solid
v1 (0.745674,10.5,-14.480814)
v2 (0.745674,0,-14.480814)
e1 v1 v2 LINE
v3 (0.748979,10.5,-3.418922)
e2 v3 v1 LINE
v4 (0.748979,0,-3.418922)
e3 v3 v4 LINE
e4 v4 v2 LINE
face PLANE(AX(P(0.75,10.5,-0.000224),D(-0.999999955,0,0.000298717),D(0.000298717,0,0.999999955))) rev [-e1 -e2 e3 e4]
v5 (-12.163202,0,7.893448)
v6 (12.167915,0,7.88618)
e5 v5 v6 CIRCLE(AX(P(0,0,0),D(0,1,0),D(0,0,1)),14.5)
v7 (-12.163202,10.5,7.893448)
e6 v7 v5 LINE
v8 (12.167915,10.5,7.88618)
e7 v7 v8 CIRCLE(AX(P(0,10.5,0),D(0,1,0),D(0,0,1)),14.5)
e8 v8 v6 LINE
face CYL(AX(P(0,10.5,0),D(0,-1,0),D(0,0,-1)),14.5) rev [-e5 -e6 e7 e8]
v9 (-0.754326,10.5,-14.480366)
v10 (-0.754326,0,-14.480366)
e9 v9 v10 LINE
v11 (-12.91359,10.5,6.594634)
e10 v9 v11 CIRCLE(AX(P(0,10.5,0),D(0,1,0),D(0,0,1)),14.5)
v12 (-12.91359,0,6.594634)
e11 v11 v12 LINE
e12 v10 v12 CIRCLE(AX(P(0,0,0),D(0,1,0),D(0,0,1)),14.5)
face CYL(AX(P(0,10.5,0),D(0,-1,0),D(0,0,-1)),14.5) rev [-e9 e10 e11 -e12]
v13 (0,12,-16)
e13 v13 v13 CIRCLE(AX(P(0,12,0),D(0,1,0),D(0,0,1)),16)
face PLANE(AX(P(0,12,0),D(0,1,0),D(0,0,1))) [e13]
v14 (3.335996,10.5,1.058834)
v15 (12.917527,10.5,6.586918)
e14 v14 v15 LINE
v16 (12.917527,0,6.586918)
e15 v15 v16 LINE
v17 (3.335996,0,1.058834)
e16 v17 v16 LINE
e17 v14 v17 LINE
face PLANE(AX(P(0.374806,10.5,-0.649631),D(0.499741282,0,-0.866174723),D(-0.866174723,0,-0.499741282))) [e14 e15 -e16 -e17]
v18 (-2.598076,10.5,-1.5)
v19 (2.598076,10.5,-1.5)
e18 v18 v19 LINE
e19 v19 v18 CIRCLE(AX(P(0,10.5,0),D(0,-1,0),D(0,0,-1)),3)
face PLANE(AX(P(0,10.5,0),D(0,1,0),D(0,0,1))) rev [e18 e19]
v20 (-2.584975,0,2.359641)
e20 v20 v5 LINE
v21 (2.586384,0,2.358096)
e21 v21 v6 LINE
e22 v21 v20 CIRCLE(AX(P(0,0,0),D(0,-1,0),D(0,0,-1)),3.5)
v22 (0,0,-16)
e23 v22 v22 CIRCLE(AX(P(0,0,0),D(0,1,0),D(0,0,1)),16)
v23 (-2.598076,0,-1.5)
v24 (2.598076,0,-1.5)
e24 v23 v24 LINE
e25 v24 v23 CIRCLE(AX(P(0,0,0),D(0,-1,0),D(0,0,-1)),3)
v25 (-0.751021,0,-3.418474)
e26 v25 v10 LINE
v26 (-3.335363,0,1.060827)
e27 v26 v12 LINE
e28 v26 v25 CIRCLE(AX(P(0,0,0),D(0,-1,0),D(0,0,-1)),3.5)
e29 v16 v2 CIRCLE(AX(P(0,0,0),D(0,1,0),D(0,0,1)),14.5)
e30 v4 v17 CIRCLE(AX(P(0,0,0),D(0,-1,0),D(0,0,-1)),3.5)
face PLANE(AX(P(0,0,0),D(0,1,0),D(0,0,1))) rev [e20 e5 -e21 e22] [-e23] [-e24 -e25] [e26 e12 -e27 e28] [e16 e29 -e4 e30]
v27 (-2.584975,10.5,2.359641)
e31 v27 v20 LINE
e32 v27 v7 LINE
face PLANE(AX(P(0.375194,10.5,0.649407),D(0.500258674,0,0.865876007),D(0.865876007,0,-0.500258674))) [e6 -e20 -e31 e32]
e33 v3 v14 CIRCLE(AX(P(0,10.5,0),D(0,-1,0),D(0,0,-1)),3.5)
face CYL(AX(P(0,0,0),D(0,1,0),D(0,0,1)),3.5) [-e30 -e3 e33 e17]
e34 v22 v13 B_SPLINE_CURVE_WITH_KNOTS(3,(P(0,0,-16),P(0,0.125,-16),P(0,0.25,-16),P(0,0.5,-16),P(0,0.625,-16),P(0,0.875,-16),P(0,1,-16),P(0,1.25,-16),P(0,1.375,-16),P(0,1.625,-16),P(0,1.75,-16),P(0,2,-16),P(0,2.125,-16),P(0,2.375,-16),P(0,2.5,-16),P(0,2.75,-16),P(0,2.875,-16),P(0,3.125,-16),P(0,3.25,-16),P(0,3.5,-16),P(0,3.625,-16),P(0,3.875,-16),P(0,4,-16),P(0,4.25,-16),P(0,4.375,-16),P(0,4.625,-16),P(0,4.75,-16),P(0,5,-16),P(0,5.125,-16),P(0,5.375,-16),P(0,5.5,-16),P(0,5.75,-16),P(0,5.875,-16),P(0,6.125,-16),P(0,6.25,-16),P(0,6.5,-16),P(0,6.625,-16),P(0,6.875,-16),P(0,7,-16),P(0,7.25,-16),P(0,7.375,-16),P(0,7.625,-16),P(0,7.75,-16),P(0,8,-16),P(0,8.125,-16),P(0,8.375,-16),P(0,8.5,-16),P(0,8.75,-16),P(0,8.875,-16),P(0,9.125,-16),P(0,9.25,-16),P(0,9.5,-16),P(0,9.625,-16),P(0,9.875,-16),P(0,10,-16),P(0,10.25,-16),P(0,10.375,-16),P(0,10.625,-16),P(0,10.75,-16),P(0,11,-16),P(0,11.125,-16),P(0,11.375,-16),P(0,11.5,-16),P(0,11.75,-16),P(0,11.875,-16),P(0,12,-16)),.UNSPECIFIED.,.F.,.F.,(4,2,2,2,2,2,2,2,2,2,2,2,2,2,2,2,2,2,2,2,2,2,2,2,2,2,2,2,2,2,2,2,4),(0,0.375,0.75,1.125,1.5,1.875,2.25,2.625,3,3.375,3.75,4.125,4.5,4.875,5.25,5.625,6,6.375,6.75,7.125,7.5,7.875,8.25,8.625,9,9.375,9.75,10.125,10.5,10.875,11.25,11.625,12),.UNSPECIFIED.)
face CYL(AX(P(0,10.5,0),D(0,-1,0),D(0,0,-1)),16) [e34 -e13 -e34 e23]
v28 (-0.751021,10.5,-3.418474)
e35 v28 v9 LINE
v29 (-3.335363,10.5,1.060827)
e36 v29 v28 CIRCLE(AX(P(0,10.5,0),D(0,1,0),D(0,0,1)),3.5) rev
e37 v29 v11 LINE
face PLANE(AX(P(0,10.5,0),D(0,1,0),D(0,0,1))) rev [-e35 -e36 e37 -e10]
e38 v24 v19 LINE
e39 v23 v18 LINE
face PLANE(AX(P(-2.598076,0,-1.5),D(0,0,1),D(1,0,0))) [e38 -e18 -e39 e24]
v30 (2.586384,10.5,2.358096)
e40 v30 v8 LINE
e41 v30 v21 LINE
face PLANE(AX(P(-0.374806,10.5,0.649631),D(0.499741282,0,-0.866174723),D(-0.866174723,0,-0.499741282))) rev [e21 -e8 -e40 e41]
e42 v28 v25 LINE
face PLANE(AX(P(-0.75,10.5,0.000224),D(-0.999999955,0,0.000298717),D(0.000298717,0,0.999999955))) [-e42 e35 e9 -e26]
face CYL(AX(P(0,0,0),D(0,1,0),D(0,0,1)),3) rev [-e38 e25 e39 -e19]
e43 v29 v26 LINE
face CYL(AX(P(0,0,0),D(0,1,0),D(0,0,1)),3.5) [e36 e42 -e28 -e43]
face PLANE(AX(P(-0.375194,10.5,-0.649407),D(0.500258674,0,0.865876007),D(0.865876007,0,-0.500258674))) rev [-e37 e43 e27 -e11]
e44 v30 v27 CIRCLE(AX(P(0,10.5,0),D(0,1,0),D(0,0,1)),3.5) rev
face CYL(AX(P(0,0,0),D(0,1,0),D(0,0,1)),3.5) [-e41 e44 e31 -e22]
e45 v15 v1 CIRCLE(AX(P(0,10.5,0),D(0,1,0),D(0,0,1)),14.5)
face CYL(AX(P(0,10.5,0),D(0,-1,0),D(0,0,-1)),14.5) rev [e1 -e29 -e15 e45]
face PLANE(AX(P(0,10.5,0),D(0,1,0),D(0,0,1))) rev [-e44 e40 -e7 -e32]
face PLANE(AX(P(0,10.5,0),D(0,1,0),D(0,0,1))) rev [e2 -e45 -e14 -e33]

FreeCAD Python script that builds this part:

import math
import FreeCAD as App
import Part
import Sketcher
from FreeCAD import Vector
Q = App.Units.Quantity

doc = App.newDocument("Part")
body = doc.addObject("PartDesign::Body", "Body")

# Sketch on XZ plane
sketch1 = body.newObject("Sketcher::SketchObject", "Sketch")
sketch1.AttachmentSupport = (doc.getObject("XZ_Plane"), [""])
sketch1.MapMode = "FlatFace"
sketch1.addGeometry([
    Part.Circle(Vector(0, 0, 0), Vector(0, 0, 1), 16),  # 0
    Part.ArcOfCircle(Part.Circle(Vector(0, 0, 0), Vector(0, 0, 1), 14.5), math.radians(152.947783), math.radians(267.017987)),  # 1
    Part.LineSegment(Vector(-0.754326, -14.480366, 0), Vector(-0.751021, -3.418474, 0)),  # 2
    Part.ArcOfCircle(Part.Circle(Vector(0, 0, 0), Vector(0, 0, 1), 3.5), math.radians(-102.39074), math.radians(-77.64349)),  # 3
    Part.LineSegment(Vector(0.748979, -3.418922, 0), Vector(0.745674, -14.480814, 0)),  # 4
    Part.ArcOfCircle(Part.Circle(Vector(0, 0, 0), Vector(0, 0, 1), 14.5), math.radians(-87.052217), math.radians(27.017987)),  # 5
    Part.LineSegment(Vector(12.917527, 6.586918, 0), Vector(3.335996, 1.058834, 0)),  # 6
    Part.ArcOfCircle(Part.Circle(Vector(0, 0, 0), Vector(0, 0, 1), 3.5), math.radians(17.60926), math.radians(42.35651)),  # 7
    Part.LineSegment(Vector(2.586384, 2.358096, 0), Vector(12.167915, 7.88618, 0)),  # 8
    Part.ArcOfCircle(Part.Circle(Vector(0, 0, 0), Vector(0, 0, 1), 14.5), math.radians(32.947783), math.radians(147.017987)),  # 9
    Part.LineSegment(Vector(-12.163202, 7.893448, 0), Vector(-2.584975, 2.359641, 0)),  # 10
    Part.ArcOfCircle(Part.Circle(Vector(0, 0, 0), Vector(0, 0, 1), 3.5), math.radians(137.60926), math.radians(162.35651)),  # 11
    Part.LineSegment(Vector(-3.335363, 1.060827, 0), Vector(-12.91359, 6.594634, 0)),  # 12
], False)
sketch1.addConstraint([
    Sketcher.Constraint("Coincident", 1, 2, 2, 1),
    Sketcher.Constraint("Coincident", 2, 2, 3, 1),
    Sketcher.Constraint("Coincident", 3, 2, 4, 1),
    Sketcher.Constraint("Coincident", 4, 2, 5, 1),
    Sketcher.Constraint("Coincident", 5, 2, 6, 1),
    Sketcher.Constraint("Coincident", 6, 2, 7, 1),
    Sketcher.Constraint("Coincident", 7, 2, 8, 1),
    Sketcher.Constraint("Coincident", 8, 2, 9, 1),
    Sketcher.Constraint("Coincident", 9, 2, 10, 1),
    Sketcher.Constraint("Coincident", 10, 2, 11, 1),
    Sketcher.Constraint("Coincident", 11, 2, 12, 1),
    Sketcher.Constraint("Coincident", 12, 2, 1, 1),
    Sketcher.Constraint("Coincident", 0, 3, -1, 1),
    Sketcher.Constraint("Coincident", 1, 3, -1, 1),
    Sketcher.Constraint("Coincident", 3, 3, -1, 1),
    Sketcher.Constraint("Coincident", 5, 3, -1, 1),
    Sketcher.Constraint("Coincident", 7, 3, -1, 1),
    Sketcher.Constraint("Coincident", 9, 3, -1, 1),
    Sketcher.Constraint("Coincident", 11, 3, -1, 1),
    Sketcher.Constraint("Equal", 1, 5),
    Sketcher.Constraint("Equal", 3, 7),
    Sketcher.Constraint("Equal", 5, 9),
    Sketcher.Constraint("Equal", 7, 11),
    Sketcher.Constraint("Parallel", 2, 4),
    Sketcher.Constraint("Parallel", 6, 8),
    Sketcher.Constraint("Parallel", 10, 12),
    Sketcher.Constraint("Equal", 2, 4),
    Sketcher.Constraint("Equal", 4, 6),
    Sketcher.Constraint("Equal", 6, 8),
    Sketcher.Constraint("Equal", 8, 10),
    Sketcher.Constraint("Equal", 10, 12),
    Sketcher.Constraint("Diameter", 0, Q("32 mm")),
    Sketcher.Constraint("Radius", 1, Q("14.5 mm")),
    Sketcher.Constraint("Radius", 3, Q("3.5 mm")),
    Sketcher.Constraint("DistanceX", 2, 2, 3, 2, Q("1.5 mm")),
    Sketcher.Constraint("DistanceX", 9, 2, -1, 1, Q("12.163202 mm")),
    Sketcher.Constraint("DistanceX", 2, 2, -1, 1, Q("0.751021 mm")),
    Sketcher.Constraint("DistanceY", -1, 1, 8, 2, Q("7.88618 mm")),
])
pad1 = body.newObject("PartDesign::Pad", "Pad")
pad1.Profile = sketch1
pad1.Length = 10.5
pad1.Reversed = True

# Sketch on XZ plane
sketch2 = body.newObject("Sketcher::SketchObject", "Sketch001")
sketch2.AttachmentSupport = (doc.getObject("XZ_Plane"), [""])
sketch2.MapMode = "FlatFace"
sketch2.AttachmentOffset = App.Placement(Vector(0, 0, -10.5), App.Rotation())
sketch2.addGeometry(Part.Circle(Vector(0, 0, 0), Vector(0, 0, 1), 16), False)
sketch2.addConstraint([
    Sketcher.Constraint("Coincident", 0, 3, -1, 1),
    Sketcher.Constraint("Diameter", 0, Q("32 mm")),
])
pad2 = body.newObject("PartDesign::Pad", "Pad001")
pad2.Profile = sketch2
pad2.Length = 1.5
pad2.Reversed = True

# Sketch on XZ plane
sketch3 = body.newObject("Sketcher::SketchObject", "Sketch002")
sketch3.AttachmentSupport = (doc.getObject("XZ_Plane"), [""])
sketch3.MapMode = "FlatFace"
sketch3.addGeometry([
    Part.Circle(Vector(0, 0, 0), Vector(0, 0, 1), 3.5),
    Part.LineSegment(Vector(2.598076, -1.5, 0), Vector(-2.598076, -1.5, 0)),
    Part.ArcOfCircle(Part.Circle(Vector(0, 0, 0), Vector(0, 0, 1), 3), math.radians(-30), math.radians(210)),
], False)
sketch3.addConstraint([
    Sketcher.Constraint("Coincident", 1, 1, 2, 1),
    Sketcher.Constraint("Coincident", 2, 2, 1, 2),
    Sketcher.Constraint("Horizontal", 1),
    Sketcher.Constraint("Coincident", 0, 3, -1, 1),
    Sketcher.Constraint("Coincident", 2, 3, -1, 1),
    Sketcher.Constraint("Diameter", 0, Q("7 mm")),
    Sketcher.Constraint("Radius", 2, Q("3 mm")),
    Sketcher.Constraint("DistanceY", 1, 1, -1, 1, Q("1.5 mm")),
])
pad3 = body.newObject("PartDesign::Pad", "Pad002")
pad3.Profile = sketch3
pad3.Length = 10.5
pad3.Reversed = True

doc.recompute()
